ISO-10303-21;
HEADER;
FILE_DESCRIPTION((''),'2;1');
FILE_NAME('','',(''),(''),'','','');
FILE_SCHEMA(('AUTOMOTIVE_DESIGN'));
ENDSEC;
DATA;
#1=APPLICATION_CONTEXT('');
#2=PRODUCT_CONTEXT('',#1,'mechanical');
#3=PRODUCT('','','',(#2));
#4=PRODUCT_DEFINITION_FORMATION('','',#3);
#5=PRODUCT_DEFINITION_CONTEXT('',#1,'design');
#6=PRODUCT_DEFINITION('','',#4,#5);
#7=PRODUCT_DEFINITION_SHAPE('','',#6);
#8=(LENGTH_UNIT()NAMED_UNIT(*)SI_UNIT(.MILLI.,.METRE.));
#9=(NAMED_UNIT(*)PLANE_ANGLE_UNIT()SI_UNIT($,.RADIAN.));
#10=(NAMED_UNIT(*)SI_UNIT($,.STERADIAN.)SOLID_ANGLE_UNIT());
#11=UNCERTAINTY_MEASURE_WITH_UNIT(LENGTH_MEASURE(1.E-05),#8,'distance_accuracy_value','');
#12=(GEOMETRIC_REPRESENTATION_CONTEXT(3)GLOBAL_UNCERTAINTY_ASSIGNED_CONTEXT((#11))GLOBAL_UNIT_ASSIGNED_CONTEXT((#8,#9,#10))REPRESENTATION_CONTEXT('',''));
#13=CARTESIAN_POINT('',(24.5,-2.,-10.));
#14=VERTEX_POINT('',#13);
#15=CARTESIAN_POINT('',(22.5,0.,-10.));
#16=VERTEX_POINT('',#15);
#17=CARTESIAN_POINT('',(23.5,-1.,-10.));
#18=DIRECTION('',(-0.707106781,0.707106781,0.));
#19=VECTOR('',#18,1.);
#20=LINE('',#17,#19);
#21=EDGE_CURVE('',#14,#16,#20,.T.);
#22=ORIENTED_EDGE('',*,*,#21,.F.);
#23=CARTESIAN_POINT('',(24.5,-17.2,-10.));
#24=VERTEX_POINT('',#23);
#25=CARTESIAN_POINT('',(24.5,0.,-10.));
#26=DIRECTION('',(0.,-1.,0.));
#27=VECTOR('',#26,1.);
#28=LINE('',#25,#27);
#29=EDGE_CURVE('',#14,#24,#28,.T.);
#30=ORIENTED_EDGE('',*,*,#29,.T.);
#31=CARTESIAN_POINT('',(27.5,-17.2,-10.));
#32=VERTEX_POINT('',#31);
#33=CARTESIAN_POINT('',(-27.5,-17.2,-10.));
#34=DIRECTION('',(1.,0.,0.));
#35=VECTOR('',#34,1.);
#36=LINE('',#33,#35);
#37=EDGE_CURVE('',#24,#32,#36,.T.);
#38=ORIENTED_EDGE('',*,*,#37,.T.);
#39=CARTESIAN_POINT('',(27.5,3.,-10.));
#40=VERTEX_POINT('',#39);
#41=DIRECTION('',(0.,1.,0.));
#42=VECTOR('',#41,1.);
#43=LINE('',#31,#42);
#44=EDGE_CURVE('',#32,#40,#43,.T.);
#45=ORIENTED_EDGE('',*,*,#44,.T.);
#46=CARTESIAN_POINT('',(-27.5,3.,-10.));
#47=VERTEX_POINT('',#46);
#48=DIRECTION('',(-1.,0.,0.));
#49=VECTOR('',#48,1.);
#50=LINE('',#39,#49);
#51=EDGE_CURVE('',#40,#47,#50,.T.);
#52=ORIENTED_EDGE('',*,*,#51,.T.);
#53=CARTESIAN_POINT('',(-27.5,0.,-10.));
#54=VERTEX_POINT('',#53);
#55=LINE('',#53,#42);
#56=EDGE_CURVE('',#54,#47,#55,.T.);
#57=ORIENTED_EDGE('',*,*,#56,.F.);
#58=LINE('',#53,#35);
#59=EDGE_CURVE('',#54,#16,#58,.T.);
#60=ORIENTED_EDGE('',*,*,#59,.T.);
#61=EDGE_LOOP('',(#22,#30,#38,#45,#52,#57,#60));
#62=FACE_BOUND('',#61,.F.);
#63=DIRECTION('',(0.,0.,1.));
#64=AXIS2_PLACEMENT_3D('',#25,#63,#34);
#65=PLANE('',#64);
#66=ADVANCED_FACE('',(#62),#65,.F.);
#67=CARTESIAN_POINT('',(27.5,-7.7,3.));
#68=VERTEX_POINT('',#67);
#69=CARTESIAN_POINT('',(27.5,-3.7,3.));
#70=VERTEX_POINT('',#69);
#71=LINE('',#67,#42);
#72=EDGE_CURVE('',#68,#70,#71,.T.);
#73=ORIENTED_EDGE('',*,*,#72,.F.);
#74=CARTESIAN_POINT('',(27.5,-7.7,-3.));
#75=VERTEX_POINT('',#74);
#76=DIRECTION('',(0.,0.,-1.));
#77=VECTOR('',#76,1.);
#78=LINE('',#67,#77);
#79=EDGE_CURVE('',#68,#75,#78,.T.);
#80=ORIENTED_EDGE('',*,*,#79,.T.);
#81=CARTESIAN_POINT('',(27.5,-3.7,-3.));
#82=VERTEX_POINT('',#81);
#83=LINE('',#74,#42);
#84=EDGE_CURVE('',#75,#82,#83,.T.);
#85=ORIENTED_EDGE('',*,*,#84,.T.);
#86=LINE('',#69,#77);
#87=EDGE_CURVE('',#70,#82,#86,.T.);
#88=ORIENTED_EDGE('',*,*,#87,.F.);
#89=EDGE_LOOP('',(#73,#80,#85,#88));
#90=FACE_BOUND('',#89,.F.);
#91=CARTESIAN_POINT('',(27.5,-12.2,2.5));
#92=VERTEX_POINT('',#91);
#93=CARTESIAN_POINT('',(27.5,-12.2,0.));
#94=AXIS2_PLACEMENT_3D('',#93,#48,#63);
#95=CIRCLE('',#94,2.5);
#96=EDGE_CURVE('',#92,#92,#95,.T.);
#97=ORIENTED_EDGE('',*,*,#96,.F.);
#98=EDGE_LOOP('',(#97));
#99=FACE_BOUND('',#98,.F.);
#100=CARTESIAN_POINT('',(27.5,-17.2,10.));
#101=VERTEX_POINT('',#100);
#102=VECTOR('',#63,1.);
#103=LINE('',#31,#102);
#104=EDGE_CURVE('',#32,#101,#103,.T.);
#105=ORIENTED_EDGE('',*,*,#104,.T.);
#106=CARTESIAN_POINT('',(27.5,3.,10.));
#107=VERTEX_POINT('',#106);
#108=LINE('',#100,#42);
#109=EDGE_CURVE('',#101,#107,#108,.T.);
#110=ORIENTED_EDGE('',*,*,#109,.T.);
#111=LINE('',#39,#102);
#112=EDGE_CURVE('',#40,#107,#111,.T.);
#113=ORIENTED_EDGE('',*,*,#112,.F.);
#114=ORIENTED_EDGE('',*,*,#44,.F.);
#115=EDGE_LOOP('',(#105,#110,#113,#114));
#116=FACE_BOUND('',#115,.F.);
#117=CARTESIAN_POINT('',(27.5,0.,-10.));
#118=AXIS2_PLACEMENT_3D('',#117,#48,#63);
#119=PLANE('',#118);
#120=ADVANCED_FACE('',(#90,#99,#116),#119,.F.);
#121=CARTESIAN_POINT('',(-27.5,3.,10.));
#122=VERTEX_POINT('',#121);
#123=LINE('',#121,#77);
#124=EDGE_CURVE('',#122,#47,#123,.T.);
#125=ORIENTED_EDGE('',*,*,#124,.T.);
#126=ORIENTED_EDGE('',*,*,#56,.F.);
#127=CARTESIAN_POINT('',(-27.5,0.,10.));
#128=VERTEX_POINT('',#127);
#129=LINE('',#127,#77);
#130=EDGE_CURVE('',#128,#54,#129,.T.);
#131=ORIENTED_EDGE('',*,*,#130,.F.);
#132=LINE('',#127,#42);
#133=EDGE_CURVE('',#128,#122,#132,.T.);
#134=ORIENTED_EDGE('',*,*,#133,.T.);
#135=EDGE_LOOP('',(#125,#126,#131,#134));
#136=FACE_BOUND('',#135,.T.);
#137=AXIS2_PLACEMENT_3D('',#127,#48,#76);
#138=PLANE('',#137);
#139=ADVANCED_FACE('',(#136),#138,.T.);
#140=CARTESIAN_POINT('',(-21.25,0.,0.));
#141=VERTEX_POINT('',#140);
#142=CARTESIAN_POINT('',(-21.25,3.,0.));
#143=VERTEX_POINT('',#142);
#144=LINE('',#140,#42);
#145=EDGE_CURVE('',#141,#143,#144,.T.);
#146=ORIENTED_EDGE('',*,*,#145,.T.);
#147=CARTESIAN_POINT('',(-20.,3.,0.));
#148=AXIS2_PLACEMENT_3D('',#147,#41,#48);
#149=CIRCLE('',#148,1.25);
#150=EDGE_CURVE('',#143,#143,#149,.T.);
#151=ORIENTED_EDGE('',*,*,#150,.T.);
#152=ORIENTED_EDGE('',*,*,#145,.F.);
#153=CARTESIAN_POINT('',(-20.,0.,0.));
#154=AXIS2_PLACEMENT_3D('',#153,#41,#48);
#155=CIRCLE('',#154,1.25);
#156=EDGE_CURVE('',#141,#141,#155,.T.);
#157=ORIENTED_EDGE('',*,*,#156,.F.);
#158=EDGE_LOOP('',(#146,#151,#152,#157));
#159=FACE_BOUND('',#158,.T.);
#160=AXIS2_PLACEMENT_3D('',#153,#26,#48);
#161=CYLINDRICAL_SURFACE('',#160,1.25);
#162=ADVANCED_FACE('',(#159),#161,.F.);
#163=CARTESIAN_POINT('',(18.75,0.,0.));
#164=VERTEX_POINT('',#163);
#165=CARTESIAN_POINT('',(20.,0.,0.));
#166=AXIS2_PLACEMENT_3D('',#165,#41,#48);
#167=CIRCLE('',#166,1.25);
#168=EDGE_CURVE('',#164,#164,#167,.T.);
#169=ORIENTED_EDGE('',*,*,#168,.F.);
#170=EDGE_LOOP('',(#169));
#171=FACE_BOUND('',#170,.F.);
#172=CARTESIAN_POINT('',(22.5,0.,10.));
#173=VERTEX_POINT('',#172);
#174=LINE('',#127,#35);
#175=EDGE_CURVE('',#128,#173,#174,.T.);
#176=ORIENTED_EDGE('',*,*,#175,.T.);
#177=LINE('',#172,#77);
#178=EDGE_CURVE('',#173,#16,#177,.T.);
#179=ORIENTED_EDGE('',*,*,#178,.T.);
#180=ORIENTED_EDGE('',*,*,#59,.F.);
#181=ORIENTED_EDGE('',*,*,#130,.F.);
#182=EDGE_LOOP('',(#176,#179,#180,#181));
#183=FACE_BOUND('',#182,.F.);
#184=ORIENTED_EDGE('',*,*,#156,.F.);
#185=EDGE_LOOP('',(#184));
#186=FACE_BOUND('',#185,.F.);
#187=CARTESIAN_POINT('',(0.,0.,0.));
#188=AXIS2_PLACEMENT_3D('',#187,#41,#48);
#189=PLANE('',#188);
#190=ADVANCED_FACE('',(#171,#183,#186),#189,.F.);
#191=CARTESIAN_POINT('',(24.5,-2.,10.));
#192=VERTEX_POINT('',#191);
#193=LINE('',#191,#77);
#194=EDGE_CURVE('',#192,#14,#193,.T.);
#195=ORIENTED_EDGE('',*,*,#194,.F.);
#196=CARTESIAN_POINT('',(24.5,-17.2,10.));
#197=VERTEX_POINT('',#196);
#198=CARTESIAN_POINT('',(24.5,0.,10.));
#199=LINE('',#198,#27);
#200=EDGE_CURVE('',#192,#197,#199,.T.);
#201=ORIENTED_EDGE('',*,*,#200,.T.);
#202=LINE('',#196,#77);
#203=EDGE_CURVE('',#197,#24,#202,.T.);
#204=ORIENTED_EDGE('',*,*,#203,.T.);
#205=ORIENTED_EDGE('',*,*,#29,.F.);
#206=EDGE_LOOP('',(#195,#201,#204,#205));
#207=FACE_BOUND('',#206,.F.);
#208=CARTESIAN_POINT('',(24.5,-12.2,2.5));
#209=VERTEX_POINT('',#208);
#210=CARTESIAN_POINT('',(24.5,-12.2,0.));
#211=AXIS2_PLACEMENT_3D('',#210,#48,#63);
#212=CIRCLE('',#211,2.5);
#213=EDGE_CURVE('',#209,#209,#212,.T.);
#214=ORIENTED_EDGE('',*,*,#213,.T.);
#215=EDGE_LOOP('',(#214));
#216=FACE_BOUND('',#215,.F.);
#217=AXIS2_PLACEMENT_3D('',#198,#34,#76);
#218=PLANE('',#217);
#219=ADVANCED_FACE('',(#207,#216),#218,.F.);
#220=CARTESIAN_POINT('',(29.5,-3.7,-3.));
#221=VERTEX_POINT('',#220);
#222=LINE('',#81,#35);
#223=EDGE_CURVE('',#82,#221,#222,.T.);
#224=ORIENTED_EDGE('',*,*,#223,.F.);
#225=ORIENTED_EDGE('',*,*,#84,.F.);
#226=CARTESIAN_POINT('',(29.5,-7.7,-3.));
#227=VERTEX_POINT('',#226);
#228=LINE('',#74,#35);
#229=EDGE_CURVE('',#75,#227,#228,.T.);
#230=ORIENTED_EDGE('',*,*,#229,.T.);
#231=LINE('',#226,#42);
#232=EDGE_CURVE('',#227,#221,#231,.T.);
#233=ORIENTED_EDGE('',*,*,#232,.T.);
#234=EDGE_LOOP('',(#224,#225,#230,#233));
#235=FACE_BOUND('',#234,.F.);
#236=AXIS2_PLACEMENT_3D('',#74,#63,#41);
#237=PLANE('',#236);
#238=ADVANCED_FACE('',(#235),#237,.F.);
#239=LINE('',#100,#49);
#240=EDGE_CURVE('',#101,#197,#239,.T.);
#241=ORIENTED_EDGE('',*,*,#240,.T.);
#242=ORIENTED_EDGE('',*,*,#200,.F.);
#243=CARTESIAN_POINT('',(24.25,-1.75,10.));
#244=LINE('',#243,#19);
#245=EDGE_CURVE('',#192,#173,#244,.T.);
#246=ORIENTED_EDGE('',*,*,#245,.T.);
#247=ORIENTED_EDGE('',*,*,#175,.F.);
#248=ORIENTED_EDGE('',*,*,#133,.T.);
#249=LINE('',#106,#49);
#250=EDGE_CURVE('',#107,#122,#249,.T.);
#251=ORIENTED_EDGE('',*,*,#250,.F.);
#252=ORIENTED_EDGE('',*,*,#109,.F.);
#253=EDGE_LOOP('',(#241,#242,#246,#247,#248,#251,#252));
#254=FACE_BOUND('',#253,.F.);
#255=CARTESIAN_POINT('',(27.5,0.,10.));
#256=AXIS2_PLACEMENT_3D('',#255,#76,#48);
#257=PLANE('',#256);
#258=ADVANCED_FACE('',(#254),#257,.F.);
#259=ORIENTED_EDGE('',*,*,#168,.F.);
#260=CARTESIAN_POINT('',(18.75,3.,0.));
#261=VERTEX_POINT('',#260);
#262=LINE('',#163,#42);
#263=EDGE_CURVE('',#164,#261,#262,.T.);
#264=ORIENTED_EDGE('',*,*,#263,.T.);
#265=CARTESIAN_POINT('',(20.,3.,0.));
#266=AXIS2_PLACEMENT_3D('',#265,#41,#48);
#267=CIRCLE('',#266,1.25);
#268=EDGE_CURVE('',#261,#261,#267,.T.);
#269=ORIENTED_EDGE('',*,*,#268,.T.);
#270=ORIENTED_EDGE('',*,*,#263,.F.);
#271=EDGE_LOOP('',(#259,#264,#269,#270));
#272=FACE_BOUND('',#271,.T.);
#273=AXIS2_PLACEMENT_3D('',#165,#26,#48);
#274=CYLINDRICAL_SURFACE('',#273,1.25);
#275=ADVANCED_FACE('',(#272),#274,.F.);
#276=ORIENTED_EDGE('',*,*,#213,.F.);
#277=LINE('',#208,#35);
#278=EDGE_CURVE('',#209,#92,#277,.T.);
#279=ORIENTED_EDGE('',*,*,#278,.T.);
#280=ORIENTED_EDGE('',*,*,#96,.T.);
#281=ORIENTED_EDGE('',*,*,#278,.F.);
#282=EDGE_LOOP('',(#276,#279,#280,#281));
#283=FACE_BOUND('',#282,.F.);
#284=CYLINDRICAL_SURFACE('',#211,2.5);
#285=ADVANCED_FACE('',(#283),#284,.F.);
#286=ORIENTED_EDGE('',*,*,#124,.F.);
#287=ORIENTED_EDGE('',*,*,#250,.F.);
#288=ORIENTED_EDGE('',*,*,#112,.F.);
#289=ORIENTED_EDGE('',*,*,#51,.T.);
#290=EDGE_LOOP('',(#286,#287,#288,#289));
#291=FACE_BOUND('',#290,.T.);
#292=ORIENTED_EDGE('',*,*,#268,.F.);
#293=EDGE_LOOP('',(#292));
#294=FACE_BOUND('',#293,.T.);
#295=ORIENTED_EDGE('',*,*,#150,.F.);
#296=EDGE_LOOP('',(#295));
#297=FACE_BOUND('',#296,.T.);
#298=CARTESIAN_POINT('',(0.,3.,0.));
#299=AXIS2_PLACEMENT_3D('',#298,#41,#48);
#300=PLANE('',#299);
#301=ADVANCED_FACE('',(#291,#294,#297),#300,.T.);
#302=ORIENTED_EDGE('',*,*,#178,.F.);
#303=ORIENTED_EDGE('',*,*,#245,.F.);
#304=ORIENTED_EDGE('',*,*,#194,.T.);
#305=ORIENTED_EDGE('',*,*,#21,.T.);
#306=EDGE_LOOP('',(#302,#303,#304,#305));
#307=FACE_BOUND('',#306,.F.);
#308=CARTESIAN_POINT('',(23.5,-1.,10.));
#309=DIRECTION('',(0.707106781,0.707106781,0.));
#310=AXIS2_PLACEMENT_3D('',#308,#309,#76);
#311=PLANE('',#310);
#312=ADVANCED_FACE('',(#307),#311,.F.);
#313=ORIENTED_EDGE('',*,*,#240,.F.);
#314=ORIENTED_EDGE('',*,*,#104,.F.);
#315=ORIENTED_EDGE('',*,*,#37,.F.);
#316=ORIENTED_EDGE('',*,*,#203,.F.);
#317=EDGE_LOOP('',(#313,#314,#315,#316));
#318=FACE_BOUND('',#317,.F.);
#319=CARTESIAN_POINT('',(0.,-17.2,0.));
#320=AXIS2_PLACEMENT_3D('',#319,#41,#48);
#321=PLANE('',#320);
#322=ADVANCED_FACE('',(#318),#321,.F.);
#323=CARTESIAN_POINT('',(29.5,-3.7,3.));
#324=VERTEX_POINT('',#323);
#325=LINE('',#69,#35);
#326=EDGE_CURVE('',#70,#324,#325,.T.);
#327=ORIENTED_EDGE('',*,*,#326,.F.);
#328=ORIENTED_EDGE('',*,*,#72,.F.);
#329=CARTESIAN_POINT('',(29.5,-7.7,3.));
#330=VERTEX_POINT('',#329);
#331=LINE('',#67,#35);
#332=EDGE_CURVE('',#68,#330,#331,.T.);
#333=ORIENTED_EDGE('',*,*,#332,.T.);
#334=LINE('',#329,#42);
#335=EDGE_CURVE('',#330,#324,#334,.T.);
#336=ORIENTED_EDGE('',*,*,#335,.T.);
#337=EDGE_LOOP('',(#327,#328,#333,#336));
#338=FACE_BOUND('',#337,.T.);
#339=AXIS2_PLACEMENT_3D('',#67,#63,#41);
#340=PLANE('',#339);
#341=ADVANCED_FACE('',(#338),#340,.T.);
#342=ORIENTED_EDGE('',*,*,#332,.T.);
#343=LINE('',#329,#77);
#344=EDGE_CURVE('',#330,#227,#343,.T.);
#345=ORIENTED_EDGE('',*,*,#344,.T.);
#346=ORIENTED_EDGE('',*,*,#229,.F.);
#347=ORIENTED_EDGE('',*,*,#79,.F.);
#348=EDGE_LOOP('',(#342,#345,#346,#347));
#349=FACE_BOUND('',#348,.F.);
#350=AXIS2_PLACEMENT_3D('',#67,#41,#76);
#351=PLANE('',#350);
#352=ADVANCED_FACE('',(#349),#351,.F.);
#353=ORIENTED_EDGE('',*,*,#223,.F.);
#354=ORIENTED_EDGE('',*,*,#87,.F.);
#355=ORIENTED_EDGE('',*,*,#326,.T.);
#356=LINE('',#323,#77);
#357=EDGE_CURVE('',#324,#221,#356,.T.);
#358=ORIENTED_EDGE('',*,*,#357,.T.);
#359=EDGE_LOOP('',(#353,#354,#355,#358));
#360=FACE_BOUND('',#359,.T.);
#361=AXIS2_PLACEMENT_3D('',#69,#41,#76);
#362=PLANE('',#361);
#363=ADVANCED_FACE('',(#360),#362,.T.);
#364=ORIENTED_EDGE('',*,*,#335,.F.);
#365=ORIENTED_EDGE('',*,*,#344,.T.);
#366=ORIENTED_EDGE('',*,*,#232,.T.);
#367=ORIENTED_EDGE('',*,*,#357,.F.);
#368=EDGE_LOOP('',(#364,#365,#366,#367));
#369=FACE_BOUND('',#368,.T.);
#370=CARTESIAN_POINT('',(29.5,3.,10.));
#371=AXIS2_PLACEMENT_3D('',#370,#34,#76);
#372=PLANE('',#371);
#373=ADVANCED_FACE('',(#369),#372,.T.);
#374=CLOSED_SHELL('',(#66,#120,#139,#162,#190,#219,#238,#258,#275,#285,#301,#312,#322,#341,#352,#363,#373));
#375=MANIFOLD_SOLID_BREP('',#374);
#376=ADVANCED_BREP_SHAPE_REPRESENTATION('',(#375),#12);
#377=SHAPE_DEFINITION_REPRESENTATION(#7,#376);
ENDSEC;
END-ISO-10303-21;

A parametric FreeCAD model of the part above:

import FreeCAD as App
import Part
import Sketcher
from FreeCAD import Vector
Q = App.Units.Quantity


def edges_at(feature, points):
    """Names of the edges that pass closest to the given points."""
    edges = feature.Shape.Edges
    near = lambda p: min(range(len(edges)), key=lambda i: edges[i].distToShape(Part.Vertex(*p))[0])
    return sorted({f"Edge{near(p) + 1}" for p in points})


def add_polygon(sketch, points):
    """Adds a closed chain of lines whose ends are joined by coincident constraints."""
    first, n = sketch.GeometryCount, len(points)
    for a, b in zip(points, points[1:] + points[:1]):
        sketch.addGeometry(Part.LineSegment(App.Vector(*a, 0), App.Vector(*b, 0)), False)
    for i in range(n):
        sketch.addConstraint(Sketcher.Constraint("Coincident", first + i, 2, first + (i + 1) % n, 1))

doc = App.newDocument("Part")
body = doc.addObject("PartDesign::Body", "Body")

sketch1 = body.newObject("Sketcher::SketchObject", "Sketch")
sketch1.AttachmentSupport = (doc.getObject("XZ_Plane"), [""])
sketch1.MapMode = "FlatFace"
add_polygon(sketch1, [(27.5, 10), (27.5, -10), (-27.5, -10), (-27.5, 10)])
sketch1.addGeometry(Part.Circle(Vector(-20, 0, 0), Vector(0, 0, 1), 1.2), False)
sketch1.addGeometry(Part.Circle(Vector(20, 0, 0), Vector(0, 0, 1), 1.2), False)
sketch1.addConstraint([
    Sketcher.Constraint("Vertical", 0),
    Sketcher.Constraint("Horizontal", 1),
    Sketcher.Constraint("Vertical", 2),
    Sketcher.Constraint("Horizontal", 3),
    Sketcher.Constraint("Equal", 4, 5),
    Sketcher.Constraint("Symmetric", 4, 3, 5, 3, -1, 1),
    Sketcher.Constraint("Symmetric", 0, 2, 2, 2, -1, 1),
    Sketcher.Constraint("PointOnObject", 4, 3, -1),
    Sketcher.Constraint("Diameter", 4, Q("2.5 mm")),
    Sketcher.Constraint("DistanceX", 1, 2, 1, 1, Q("55 mm")),
    Sketcher.Constraint("DistanceY", 0, 2, 0, 1, Q("20 mm")),
    Sketcher.Constraint("DistanceX", 4, 3, -1, 1, Q("20 mm")),
])
pad1 = body.newObject("PartDesign::Pad", "Pad")
pad1.Profile = sketch1
pad1.Length = 3
pad1.Reversed = True

sketch2 = body.newObject("Sketcher::SketchObject", "Sketch001")
sketch2.AttachmentSupport = (doc.getObject("XZ_Plane"), [""])
sketch2.MapMode = "FlatFace"
add_polygon(sketch2, [(24.5, 10), (27.5, 10), (27.5, -10), (24.5, -10)])
sketch2.addConstraint([
    Sketcher.Constraint("Horizontal", 0),
    Sketcher.Constraint("Vertical", 1),
    Sketcher.Constraint("Horizontal", 2),
    Sketcher.Constraint("Vertical", 3),
    Sketcher.Constraint("DistanceX", 0, 1, 0, 2, Q("3 mm")),
    Sketcher.Constraint("DistanceY", 1, 2, 1, 1, Q("20 mm")),
    Sketcher.Constraint("DistanceY", -1, 1, 0, 2, Q("10 mm")),
    Sketcher.Constraint("DistanceX", -1, 1, 0, 2, Q("27.5 mm")),
])
pad2 = body.newObject("PartDesign::Pad", "Pad001")
pad2.Profile = sketch2
pad2.Length = 17.2
doc.recompute()

chamfer = body.newObject("PartDesign::Chamfer", "Chamfer")
chamfer.Base = (pad2, edges_at(pad2, [(24.5, 0, 0)]))
chamfer.Size = 2

sketch3 = body.newObject("Sketcher::SketchObject", "Sketch002")
sketch3.AttachmentSupport = (doc.getObject("YZ_Plane"), [""])
sketch3.MapMode = "FlatFace"
sketch3.AttachmentOffset = App.Placement(Vector(0, 0, 24.5), App.Rotation())
sketch3.addGeometry(Part.Circle(Vector(-12.2, 0, 0), Vector(0, 0, 1), 2.5), False)
sketch3.addConstraint([
    Sketcher.Constraint("PointOnObject", 0, 3, -1),
    Sketcher.Constraint("Diameter", 0, Q("5 mm")),
    Sketcher.Constraint("DistanceX", 0, 3, -1, 1, Q("12.2 mm")),
])
pocket1 = body.newObject("PartDesign::Pocket", "Pocket")
pocket1.Profile = sketch3
pocket1.Length = 3
pocket1.Reversed = True

sketch4 = body.newObject("Sketcher::SketchObject", "Sketch003")
sketch4.AttachmentSupport = (doc.getObject("YZ_Plane"), [""])
sketch4.MapMode = "FlatFace"
sketch4.AttachmentOffset = App.Placement(Vector(0, 0, 27.5), App.Rotation())
add_polygon(sketch4, [(-3.7, 3), (-7.7, 3), (-7.7, -3), (-3.7, -3)])
sketch4.addConstraint([
    Sketcher.Constraint("Horizontal", 0),
    Sketcher.Constraint("Vertical", 1),
    Sketcher.Constraint("Horizontal", 2),
    Sketcher.Constraint("Vertical", 3),
    Sketcher.Constraint("DistanceY", -1, 1, 0, 2, Q("3 mm")),
    Sketcher.Constraint("DistanceY", 1, 2, -1, 1, Q("3 mm")),
    Sketcher.Constraint("DistanceX", 0, 2, 0, 1, Q("4 mm")),
    Sketcher.Constraint("DistanceX", 0, 2, -1, 1, Q("7.7 mm")),
])
pad3 = body.newObject("PartDesign::Pad", "Pad002")
pad3.Profile = sketch4
pad3.Length = 2

doc.recompute()
